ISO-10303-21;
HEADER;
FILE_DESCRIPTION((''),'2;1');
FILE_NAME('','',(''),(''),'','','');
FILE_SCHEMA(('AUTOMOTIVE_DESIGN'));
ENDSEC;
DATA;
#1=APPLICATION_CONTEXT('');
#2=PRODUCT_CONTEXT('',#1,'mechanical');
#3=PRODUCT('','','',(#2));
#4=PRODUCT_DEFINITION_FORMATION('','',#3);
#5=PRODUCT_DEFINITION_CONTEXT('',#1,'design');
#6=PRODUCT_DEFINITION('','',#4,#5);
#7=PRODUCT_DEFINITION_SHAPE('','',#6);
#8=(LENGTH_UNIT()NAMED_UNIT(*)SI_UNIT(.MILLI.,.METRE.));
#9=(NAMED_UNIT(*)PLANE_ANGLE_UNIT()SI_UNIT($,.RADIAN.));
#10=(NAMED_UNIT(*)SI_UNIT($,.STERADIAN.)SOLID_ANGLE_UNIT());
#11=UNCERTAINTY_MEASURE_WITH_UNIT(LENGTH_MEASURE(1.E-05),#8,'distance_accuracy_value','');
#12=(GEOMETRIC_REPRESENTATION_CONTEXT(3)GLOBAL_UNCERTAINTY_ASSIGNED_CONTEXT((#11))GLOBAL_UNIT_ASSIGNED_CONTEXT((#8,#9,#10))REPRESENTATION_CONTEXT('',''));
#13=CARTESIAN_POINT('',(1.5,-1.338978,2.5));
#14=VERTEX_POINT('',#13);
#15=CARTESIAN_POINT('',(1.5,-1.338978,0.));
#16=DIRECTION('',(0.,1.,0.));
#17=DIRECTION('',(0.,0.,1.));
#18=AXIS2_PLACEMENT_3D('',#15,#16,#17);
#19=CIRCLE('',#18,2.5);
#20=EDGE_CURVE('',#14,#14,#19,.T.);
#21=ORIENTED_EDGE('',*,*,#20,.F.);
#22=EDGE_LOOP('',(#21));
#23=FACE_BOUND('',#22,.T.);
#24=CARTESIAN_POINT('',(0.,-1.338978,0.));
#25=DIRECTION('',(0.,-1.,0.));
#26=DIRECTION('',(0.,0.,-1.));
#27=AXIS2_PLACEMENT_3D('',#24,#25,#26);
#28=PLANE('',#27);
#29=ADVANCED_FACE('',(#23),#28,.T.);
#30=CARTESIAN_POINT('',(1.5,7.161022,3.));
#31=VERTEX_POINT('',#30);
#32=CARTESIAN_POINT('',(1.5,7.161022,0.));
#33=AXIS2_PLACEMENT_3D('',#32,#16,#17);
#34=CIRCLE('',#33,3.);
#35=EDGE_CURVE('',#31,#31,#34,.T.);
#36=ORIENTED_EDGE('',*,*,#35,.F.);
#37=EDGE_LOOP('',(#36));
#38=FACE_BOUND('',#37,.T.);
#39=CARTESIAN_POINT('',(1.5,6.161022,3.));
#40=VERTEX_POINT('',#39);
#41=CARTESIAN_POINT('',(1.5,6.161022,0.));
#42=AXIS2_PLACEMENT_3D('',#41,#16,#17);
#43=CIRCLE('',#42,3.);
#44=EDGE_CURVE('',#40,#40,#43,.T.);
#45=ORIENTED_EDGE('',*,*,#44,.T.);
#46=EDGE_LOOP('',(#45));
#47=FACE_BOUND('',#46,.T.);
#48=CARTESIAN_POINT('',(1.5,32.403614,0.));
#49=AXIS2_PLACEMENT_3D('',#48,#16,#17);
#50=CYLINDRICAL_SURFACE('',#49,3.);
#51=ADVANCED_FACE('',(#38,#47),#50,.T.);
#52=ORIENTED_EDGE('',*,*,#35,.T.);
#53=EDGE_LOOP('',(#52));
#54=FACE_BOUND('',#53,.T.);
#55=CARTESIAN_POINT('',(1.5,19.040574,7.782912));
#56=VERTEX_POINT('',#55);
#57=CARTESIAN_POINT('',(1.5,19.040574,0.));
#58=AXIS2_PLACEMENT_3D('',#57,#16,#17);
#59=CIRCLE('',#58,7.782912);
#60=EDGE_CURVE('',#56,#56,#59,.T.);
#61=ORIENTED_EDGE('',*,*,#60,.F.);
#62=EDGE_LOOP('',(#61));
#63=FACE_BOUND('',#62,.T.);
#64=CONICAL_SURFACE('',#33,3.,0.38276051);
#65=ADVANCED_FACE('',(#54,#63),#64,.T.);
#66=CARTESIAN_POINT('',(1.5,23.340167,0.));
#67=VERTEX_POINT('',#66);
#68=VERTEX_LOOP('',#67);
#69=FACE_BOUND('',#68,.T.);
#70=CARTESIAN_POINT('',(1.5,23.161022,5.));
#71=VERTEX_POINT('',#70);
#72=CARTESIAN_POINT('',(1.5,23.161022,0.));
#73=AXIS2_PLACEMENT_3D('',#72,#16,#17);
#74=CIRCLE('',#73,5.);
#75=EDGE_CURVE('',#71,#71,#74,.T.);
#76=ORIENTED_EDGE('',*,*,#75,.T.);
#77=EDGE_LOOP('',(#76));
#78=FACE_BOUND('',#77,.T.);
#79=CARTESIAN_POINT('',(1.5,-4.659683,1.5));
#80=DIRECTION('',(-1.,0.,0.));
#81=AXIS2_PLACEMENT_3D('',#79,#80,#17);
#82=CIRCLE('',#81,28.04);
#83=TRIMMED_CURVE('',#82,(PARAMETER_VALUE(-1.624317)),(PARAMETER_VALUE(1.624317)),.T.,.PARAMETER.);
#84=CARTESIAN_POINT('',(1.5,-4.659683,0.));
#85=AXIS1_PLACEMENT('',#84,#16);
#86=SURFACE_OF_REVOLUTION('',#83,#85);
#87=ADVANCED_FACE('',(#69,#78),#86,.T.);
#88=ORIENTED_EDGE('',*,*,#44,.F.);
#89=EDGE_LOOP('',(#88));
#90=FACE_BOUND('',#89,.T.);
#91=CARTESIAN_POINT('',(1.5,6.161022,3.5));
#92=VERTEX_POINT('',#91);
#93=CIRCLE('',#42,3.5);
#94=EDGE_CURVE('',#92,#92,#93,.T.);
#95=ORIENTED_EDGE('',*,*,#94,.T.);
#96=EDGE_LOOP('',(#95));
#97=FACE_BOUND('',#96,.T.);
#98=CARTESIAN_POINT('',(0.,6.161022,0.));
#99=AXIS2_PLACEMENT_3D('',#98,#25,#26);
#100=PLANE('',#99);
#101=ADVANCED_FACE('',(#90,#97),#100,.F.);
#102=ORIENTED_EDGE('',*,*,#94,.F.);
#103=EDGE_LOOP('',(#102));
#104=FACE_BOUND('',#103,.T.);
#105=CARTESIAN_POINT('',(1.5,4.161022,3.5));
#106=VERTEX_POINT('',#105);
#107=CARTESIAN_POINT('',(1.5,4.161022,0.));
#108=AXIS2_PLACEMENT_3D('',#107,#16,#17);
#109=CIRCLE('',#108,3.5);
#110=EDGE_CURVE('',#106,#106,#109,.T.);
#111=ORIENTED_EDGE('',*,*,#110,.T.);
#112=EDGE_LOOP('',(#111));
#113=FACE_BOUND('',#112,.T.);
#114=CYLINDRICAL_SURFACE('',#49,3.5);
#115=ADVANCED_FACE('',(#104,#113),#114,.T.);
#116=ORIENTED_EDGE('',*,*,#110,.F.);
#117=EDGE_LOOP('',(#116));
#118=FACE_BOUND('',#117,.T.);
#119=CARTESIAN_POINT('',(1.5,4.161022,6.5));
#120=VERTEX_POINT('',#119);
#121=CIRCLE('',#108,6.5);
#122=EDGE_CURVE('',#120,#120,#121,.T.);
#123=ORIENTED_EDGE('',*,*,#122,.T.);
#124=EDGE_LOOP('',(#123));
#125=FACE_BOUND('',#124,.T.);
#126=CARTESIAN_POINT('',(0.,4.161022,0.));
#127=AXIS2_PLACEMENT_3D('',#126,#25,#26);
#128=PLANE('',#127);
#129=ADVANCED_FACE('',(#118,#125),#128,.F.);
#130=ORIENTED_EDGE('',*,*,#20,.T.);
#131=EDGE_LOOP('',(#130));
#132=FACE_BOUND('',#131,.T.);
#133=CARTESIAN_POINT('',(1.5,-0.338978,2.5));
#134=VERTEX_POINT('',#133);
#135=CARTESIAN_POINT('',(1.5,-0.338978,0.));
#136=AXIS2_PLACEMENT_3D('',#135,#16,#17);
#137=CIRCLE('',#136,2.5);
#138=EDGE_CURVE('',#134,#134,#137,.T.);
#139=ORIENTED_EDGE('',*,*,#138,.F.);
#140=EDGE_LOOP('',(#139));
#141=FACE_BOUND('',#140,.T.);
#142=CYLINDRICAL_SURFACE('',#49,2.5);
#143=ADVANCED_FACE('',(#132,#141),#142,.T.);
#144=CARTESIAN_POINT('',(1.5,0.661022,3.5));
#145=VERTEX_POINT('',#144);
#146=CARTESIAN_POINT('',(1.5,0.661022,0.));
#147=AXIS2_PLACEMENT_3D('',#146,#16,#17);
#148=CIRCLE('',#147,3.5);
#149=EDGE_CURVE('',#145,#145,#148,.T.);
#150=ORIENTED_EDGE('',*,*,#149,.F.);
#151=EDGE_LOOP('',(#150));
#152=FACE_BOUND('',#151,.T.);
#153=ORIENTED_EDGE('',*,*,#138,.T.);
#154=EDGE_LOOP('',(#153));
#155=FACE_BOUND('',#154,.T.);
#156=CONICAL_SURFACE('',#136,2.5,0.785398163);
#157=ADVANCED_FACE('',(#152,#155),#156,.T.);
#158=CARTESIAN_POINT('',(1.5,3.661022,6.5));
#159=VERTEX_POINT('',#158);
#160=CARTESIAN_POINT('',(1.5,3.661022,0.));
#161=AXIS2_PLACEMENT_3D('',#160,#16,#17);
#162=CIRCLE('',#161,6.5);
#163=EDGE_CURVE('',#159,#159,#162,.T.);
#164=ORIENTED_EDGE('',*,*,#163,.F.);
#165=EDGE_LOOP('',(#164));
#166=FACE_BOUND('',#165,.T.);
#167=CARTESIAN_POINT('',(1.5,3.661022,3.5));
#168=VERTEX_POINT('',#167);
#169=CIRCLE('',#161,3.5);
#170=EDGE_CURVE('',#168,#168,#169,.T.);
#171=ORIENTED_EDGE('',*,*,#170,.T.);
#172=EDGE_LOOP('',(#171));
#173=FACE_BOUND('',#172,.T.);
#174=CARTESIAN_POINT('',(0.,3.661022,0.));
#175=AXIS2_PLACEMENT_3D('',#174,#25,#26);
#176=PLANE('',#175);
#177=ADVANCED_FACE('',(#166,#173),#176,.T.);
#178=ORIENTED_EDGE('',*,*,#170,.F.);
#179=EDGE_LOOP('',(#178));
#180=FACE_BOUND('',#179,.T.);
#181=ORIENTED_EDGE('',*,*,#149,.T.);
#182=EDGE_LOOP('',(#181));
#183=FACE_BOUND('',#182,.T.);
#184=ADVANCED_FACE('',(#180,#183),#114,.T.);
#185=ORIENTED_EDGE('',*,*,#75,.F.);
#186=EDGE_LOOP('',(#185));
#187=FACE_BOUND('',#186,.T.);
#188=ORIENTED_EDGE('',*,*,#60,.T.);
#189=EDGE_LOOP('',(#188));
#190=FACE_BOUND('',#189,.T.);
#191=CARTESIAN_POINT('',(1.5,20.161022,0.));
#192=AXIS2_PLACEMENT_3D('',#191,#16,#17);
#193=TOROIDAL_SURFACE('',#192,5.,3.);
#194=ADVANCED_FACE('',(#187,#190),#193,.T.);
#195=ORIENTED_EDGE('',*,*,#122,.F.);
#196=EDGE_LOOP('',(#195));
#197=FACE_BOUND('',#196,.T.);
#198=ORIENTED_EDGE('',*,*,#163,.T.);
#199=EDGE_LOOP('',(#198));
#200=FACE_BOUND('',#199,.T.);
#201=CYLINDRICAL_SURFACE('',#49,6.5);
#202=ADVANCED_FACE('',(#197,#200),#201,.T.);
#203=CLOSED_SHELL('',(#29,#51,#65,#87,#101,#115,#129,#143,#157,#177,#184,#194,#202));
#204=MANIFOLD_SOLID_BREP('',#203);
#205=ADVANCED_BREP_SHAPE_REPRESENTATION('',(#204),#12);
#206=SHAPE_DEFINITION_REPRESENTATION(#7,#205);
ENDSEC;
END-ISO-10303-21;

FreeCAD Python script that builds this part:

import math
import FreeCAD as App
import Part
import Sketcher

V = App.Vector
Q = App.Units.Quantity

doc = App.newDocument("Part")
params = doc.addObject("Spreadsheet::Sheet", "Params")
for row, (alias, value) in enumerate([
    ("sketch1_radius", "3 mm"),
    ("sketch1_width", "3 mm"),
    ("sketch1_height", "1 mm"),
    ("sketch1_height2", "2 mm"),
    ("sketch1_radius2", "28.04 mm"),
    ("revolution_angle", "360 deg"),
], start=1):
    params.set(f"A{row}", alias)
    params.set(f"B{row}", "=" + value)
    params.setAlias(f"B{row}", alias)

body = doc.addObject("PartDesign::Body", "Body")

sketch1 = doc.addObject("Sketcher::SketchObject", "Sketch")
body.addObject(sketch1)
sketch1.AttachmentSupport = (doc.XY_Plane, [""])
sketch1.MapMode = "FlatFace"
sketch1.addGeometry([
    Part.LineSegment(V(-6.28, 19.04, 0), V(-1.5, 7.16, 0)),
    Part.LineSegment(V(-1.5, 7.16, 0), V(-1.5, 6.16, 0)),
    Part.LineSegment(V(-1.5, 6.16, 0), V(-2, 6.16, 0)),
    Part.LineSegment(V(-2, 6.16, 0), V(-2, 4.16, 0)),
    Part.LineSegment(V(-2, 4.16, 0), V(-5, 4.16, 0)),
    Part.LineSegment(V(-5, 4.16, 0), V(-5, 3.66, 0)),
    Part.LineSegment(V(-5, 3.66, 0), V(-2, 3.66, 0)),
    Part.LineSegment(V(-2, 3.66, 0), V(-2, 0.66, 0)),
    Part.LineSegment(V(-2, 0.66, 0), V(-1, -0.34, 0)),
    Part.LineSegment(V(-1, -0.34, 0), V(-1, -1.34, 0)),
    Part.LineSegment(V(-1, -1.34, 0), V(1.5, -1.34, 0)),
    Part.LineSegment(V(1.5, -1.34, 0), V(1.5, 23.34, 0)),
    Part.ArcOfCircle(Part.Circle(V(0, -4.66, 0), V(0, 0, 1), 28.04), math.radians(86.93), math.radians(97.17)),
    Part.ArcOfCircle(Part.Circle(V(-3.5, 20.16, 0), V(0, 0, 1), 3), math.radians(90), math.radians(202)),
], False)
sketch1.addGeometry(Part.LineSegment(V(1.5, 23.34, 0), V(1.5, -4.66, 0)), True)
sketch1.addConstraint([
    Sketcher.Constraint("Coincident", 0, 2, 1, 1),
    Sketcher.Constraint("Coincident", 1, 2, 2, 1),
    Sketcher.Constraint("Coincident", 2, 2, 3, 1),
    Sketcher.Constraint("Coincident", 3, 2, 4, 1),
    Sketcher.Constraint("Coincident", 4, 2, 5, 1),
    Sketcher.Constraint("Coincident", 5, 2, 6, 1),
    Sketcher.Constraint("Coincident", 6, 2, 7, 1),
    Sketcher.Constraint("Coincident", 7, 2, 8, 1),
    Sketcher.Constraint("Coincident", 8, 2, 9, 1),
    Sketcher.Constraint("Coincident", 9, 2, 10, 1),
    Sketcher.Constraint("Coincident", 10, 2, 11, 1),
    Sketcher.Constraint("Coincident", 11, 2, 12, 1),
    Sketcher.Constraint("Coincident", 12, 2, 13, 1),
    Sketcher.Constraint("Tangent", 13, 2, 0, 1),
    Sketcher.Constraint("Vertical", 1),
    Sketcher.Constraint("Horizontal", 2),
    Sketcher.Constraint("Vertical", 3),
    Sketcher.Constraint("Horizontal", 4),
    Sketcher.Constraint("Vertical", 5),
    Sketcher.Constraint("Horizontal", 6),
    Sketcher.Constraint("Vertical", 7),
    Sketcher.Constraint("Vertical", 9),
    Sketcher.Constraint("Horizontal", 10),
    Sketcher.Constraint("Vertical", 11),
    Sketcher.Constraint("Vertical", 14),
    Sketcher.Constraint("Coincident", 14, 1, 11, 2),
    Sketcher.Constraint("PointOnObject", 12, 3, -2),
    Sketcher.Constraint("Horizontal", 12, 3, 14, 2),
    Sketcher.Constraint("Vertical", 3, 2, 6, 2),
    Sketcher.Constraint("Vertical", 13, 3, 12, 2),
    Sketcher.Constraint("Equal", 2, 5),
    Sketcher.Constraint("Equal", 6, 7),
    Sketcher.Constraint("Equal", 1, 9),
    Sketcher.Constraint("Radius", 13, 3.0),
    Sketcher.Constraint("DistanceX", 4, 2, 4, 1, 3.0),
    Sketcher.Constraint("DistanceY", 1, 2, 1, 1, 1.0),
    Sketcher.Constraint("DistanceY", 3, 2, 3, 1, 2.0),
    Sketcher.Constraint("Angle", 8, Q("-45 deg")),
    Sketcher.Constraint("Radius", 12, 28.04),
    Sketcher.Constraint("DistanceX", 2, 2, 2, 1, 0.5),
    Sketcher.Constraint("DistanceX", 10, 1, 10, 2, 2.5),
    Sketcher.Constraint("DistanceX", 2, 2, -1, 1, 2.0),
    Sketcher.Constraint("DistanceX", 8, 2, -1, 1, 1.0),
    Sketcher.Constraint("DistanceX", 13, 3, 0, 2, 2.0),
    Sketcher.Constraint("DistanceY", 0, 2, 13, 3, 13.0),
    Sketcher.Constraint("DistanceY", -1, 1, 13, 3, 20.161022),
])
sketch1.setExpression("Constraints[33]", "Params.sketch1_radius")
sketch1.setExpression("Constraints[34]", "Params.sketch1_width")
sketch1.setExpression("Constraints[35]", "Params.sketch1_height")
sketch1.setExpression("Constraints[36]", "Params.sketch1_height2")
sketch1.setExpression("Constraints[38]", "Params.sketch1_radius2")
revolution = doc.addObject("PartDesign::Revolution", "Revolution")
body.addObject(revolution)
revolution.Profile = sketch1
revolution.ReferenceAxis = (sketch1, ["Axis0"])
revolution.setExpression("Angle", "Params.revolution_angle")

doc.recompute()
